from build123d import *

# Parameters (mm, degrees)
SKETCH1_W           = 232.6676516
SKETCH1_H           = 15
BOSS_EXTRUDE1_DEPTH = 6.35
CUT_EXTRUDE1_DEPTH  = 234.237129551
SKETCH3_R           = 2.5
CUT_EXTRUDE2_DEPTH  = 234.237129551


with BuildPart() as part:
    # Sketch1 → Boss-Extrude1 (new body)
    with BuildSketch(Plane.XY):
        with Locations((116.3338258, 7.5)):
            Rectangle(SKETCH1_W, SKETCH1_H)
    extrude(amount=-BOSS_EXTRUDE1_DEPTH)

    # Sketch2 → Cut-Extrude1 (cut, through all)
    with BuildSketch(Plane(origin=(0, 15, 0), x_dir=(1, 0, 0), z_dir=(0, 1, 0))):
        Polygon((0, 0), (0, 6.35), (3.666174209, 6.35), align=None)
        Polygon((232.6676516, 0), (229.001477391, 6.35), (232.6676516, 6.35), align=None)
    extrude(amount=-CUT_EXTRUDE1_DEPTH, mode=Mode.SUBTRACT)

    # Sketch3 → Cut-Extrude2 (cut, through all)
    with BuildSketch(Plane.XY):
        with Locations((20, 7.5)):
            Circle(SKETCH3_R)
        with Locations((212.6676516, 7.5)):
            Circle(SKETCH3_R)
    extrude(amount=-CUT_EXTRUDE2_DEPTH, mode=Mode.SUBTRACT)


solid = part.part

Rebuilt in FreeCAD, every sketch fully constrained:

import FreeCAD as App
import Part
import Sketcher

V = App.Vector
Q = App.Units.Quantity

doc = App.newDocument("Part")
body = doc.addObject("PartDesign::Body", "Body")

sketch1 = body.newObject("Sketcher::SketchObject", "Sketch")
sketch1.AttachmentSupport = (doc.getObject("XY_Plane"), [""])
sketch1.MapMode = "FlatFace"
sketch1.addGeometry([
    Part.LineSegment(V(0, 15, 0), V(0, 0, 0)),
    Part.LineSegment(V(0, 0, 0), V(232.667652, 0, 0)),
    Part.LineSegment(V(232.667652, 0, 0), V(232.667652, 15, 0)),
    Part.LineSegment(V(232.667652, 15, 0), V(0, 15, 0)),
], False)
sketch1.addConstraint([
    Sketcher.Constraint("Coincident", 0, 2, 1, 1),
    Sketcher.Constraint("Coincident", 1, 2, 2, 1),
    Sketcher.Constraint("Coincident", 2, 2, 3, 1),
    Sketcher.Constraint("Coincident", 3, 2, 0, 1),
    Sketcher.Constraint("Vertical", 0),
    Sketcher.Constraint("Horizontal", 1),
    Sketcher.Constraint("Vertical", 2),
    Sketcher.Constraint("Horizontal", 3),
    Sketcher.Constraint("Coincident", 0, 2, -1, 1),
    Sketcher.Constraint("DistanceY", 0, 2, 0, 1, 15.0),
    Sketcher.Constraint("DistanceX", 1, 1, 1, 2, 232.667652),
])
pad1 = body.newObject("PartDesign::Pad", "Pad")
pad1.Profile = sketch1
pad1.Length = 6.35
pad1.Reversed = True

sketch2 = body.newObject("Sketcher::SketchObject", "Sketch001")
sketch2.AttachmentSupport = (doc.getObject("XZ_Plane"), [""])
sketch2.MapMode = "FlatFace"
sketch2.AttachmentOffset = App.Placement(V(0, 0, -15), App.Rotation())
sketch2.addGeometry([
    Part.LineSegment(V(0, -6.35, 0), V(0, 0, 0)),
    Part.LineSegment(V(0, 0, 0), V(3.666174, -6.35, 0)),
    Part.LineSegment(V(3.666174, -6.35, 0), V(0, -6.35, 0)),
    Part.LineSegment(V(229.001477, -6.35, 0), V(232.667652, 0, 0)),
    Part.LineSegment(V(232.667652, 0, 0), V(232.667652, -6.35, 0)),
    Part.LineSegment(V(232.667652, -6.35, 0), V(229.001477, -6.35, 0)),
], False)
sketch2.addConstraint([
    Sketcher.Constraint("Coincident", 0, 2, 1, 1),
    Sketcher.Constraint("Coincident", 1, 2, 2, 1),
    Sketcher.Constraint("Coincident", 2, 2, 0, 1),
    Sketcher.Constraint("Coincident", 3, 2, 4, 1),
    Sketcher.Constraint("Coincident", 4, 2, 5, 1),
    Sketcher.Constraint("Coincident", 5, 2, 3, 1),
    Sketcher.Constraint("Vertical", 0),
    Sketcher.Constraint("Horizontal", 2),
    Sketcher.Constraint("Vertical", 4),
    Sketcher.Constraint("Horizontal", 5),
    Sketcher.Constraint("Coincident", 0, 2, -1, 1),
    Sketcher.Constraint("PointOnObject", 3, 2, -1),
    Sketcher.Constraint("Horizontal", 2, 2, 4, 2),
    Sketcher.Constraint("Equal", 2, 5),
    Sketcher.Constraint("Angle", 1, Q("-60 deg")),
    Sketcher.Constraint("DistanceY", 0, 1, 0, 2, 6.35),
    Sketcher.Constraint("DistanceX", -1, 1, 3, 2, 232.667652),
])
pocket1 = body.newObject("PartDesign::Pocket", "Pocket")
pocket1.Profile = sketch2
pocket1.Type = "ThroughAll"
pocket1.Reversed = True

sketch3 = body.newObject("Sketcher::SketchObject", "Sketch002")
sketch3.AttachmentSupport = (doc.getObject("XY_Plane"), [""])
sketch3.MapMode = "FlatFace"
sketch3.addGeometry([
    Part.Circle(V(20, 7.5, 0), V(0, 0, 1), 2.5),
    Part.Circle(V(212.667652, 7.5, 0), V(0, 0, 1), 2.5),
], False)
sketch3.addConstraint([
    Sketcher.Constraint("Equal", 0, 1),
    Sketcher.Constraint("Horizontal", 0, 3, 1, 3),
    Sketcher.Constraint("Diameter", 0, 5.0),
    Sketcher.Constraint("DistanceX", -1, 1, 0, 3, 20.0),
    Sketcher.Constraint("DistanceY", -1, 1, 0, 3, 7.5),
    Sketcher.Constraint("DistanceX", -1, 1, 1, 3, 212.667652),
])
pocket2 = body.newObject("PartDesign::Pocket", "Pocket001")
pocket2.Profile = sketch3
pocket2.Type = "ThroughAll"

doc.recompute()
